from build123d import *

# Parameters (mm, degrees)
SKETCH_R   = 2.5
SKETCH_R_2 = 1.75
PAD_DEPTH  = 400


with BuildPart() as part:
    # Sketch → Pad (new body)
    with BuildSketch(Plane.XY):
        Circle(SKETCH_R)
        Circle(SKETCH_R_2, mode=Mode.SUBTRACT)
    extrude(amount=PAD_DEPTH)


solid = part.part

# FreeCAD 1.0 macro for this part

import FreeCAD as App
import Part
import Sketcher
Q = App.Units.Quantity

doc = App.newDocument("Part")
body = doc.addObject("PartDesign::Body", "Body")

# Sketch on XY plane
sketch1 = doc.addObject("Sketcher::SketchObject", "Sketch")
body.addObject(sketch1)
sketch1.AttachmentSupport = (doc.XY_Plane, [""])
sketch1.MapMode = "FlatFace"
sketch1.addGeometry([
    Part.Circle(App.Vector(0, 0, 0), App.Vector(0, 0, 1), 2.5),
    Part.Circle(App.Vector(0, 0, 0), App.Vector(0, 0, 1), 1.8),
], False)
sketch1.addConstraint([
    Sketcher.Constraint("Coincident", 0, 3, -1, 1),
    Sketcher.Constraint("Coincident", 1, 3, -1, 1),
    Sketcher.Constraint("Diameter", 0, Q("5 mm")),
    Sketcher.Constraint("Diameter", 1, Q("3.5 mm")),
])
pad1 = doc.addObject("PartDesign::Pad", "Pad")
body.addObject(pad1)
pad1.Profile = sketch1
pad1.Length = 400

doc.recompute()
